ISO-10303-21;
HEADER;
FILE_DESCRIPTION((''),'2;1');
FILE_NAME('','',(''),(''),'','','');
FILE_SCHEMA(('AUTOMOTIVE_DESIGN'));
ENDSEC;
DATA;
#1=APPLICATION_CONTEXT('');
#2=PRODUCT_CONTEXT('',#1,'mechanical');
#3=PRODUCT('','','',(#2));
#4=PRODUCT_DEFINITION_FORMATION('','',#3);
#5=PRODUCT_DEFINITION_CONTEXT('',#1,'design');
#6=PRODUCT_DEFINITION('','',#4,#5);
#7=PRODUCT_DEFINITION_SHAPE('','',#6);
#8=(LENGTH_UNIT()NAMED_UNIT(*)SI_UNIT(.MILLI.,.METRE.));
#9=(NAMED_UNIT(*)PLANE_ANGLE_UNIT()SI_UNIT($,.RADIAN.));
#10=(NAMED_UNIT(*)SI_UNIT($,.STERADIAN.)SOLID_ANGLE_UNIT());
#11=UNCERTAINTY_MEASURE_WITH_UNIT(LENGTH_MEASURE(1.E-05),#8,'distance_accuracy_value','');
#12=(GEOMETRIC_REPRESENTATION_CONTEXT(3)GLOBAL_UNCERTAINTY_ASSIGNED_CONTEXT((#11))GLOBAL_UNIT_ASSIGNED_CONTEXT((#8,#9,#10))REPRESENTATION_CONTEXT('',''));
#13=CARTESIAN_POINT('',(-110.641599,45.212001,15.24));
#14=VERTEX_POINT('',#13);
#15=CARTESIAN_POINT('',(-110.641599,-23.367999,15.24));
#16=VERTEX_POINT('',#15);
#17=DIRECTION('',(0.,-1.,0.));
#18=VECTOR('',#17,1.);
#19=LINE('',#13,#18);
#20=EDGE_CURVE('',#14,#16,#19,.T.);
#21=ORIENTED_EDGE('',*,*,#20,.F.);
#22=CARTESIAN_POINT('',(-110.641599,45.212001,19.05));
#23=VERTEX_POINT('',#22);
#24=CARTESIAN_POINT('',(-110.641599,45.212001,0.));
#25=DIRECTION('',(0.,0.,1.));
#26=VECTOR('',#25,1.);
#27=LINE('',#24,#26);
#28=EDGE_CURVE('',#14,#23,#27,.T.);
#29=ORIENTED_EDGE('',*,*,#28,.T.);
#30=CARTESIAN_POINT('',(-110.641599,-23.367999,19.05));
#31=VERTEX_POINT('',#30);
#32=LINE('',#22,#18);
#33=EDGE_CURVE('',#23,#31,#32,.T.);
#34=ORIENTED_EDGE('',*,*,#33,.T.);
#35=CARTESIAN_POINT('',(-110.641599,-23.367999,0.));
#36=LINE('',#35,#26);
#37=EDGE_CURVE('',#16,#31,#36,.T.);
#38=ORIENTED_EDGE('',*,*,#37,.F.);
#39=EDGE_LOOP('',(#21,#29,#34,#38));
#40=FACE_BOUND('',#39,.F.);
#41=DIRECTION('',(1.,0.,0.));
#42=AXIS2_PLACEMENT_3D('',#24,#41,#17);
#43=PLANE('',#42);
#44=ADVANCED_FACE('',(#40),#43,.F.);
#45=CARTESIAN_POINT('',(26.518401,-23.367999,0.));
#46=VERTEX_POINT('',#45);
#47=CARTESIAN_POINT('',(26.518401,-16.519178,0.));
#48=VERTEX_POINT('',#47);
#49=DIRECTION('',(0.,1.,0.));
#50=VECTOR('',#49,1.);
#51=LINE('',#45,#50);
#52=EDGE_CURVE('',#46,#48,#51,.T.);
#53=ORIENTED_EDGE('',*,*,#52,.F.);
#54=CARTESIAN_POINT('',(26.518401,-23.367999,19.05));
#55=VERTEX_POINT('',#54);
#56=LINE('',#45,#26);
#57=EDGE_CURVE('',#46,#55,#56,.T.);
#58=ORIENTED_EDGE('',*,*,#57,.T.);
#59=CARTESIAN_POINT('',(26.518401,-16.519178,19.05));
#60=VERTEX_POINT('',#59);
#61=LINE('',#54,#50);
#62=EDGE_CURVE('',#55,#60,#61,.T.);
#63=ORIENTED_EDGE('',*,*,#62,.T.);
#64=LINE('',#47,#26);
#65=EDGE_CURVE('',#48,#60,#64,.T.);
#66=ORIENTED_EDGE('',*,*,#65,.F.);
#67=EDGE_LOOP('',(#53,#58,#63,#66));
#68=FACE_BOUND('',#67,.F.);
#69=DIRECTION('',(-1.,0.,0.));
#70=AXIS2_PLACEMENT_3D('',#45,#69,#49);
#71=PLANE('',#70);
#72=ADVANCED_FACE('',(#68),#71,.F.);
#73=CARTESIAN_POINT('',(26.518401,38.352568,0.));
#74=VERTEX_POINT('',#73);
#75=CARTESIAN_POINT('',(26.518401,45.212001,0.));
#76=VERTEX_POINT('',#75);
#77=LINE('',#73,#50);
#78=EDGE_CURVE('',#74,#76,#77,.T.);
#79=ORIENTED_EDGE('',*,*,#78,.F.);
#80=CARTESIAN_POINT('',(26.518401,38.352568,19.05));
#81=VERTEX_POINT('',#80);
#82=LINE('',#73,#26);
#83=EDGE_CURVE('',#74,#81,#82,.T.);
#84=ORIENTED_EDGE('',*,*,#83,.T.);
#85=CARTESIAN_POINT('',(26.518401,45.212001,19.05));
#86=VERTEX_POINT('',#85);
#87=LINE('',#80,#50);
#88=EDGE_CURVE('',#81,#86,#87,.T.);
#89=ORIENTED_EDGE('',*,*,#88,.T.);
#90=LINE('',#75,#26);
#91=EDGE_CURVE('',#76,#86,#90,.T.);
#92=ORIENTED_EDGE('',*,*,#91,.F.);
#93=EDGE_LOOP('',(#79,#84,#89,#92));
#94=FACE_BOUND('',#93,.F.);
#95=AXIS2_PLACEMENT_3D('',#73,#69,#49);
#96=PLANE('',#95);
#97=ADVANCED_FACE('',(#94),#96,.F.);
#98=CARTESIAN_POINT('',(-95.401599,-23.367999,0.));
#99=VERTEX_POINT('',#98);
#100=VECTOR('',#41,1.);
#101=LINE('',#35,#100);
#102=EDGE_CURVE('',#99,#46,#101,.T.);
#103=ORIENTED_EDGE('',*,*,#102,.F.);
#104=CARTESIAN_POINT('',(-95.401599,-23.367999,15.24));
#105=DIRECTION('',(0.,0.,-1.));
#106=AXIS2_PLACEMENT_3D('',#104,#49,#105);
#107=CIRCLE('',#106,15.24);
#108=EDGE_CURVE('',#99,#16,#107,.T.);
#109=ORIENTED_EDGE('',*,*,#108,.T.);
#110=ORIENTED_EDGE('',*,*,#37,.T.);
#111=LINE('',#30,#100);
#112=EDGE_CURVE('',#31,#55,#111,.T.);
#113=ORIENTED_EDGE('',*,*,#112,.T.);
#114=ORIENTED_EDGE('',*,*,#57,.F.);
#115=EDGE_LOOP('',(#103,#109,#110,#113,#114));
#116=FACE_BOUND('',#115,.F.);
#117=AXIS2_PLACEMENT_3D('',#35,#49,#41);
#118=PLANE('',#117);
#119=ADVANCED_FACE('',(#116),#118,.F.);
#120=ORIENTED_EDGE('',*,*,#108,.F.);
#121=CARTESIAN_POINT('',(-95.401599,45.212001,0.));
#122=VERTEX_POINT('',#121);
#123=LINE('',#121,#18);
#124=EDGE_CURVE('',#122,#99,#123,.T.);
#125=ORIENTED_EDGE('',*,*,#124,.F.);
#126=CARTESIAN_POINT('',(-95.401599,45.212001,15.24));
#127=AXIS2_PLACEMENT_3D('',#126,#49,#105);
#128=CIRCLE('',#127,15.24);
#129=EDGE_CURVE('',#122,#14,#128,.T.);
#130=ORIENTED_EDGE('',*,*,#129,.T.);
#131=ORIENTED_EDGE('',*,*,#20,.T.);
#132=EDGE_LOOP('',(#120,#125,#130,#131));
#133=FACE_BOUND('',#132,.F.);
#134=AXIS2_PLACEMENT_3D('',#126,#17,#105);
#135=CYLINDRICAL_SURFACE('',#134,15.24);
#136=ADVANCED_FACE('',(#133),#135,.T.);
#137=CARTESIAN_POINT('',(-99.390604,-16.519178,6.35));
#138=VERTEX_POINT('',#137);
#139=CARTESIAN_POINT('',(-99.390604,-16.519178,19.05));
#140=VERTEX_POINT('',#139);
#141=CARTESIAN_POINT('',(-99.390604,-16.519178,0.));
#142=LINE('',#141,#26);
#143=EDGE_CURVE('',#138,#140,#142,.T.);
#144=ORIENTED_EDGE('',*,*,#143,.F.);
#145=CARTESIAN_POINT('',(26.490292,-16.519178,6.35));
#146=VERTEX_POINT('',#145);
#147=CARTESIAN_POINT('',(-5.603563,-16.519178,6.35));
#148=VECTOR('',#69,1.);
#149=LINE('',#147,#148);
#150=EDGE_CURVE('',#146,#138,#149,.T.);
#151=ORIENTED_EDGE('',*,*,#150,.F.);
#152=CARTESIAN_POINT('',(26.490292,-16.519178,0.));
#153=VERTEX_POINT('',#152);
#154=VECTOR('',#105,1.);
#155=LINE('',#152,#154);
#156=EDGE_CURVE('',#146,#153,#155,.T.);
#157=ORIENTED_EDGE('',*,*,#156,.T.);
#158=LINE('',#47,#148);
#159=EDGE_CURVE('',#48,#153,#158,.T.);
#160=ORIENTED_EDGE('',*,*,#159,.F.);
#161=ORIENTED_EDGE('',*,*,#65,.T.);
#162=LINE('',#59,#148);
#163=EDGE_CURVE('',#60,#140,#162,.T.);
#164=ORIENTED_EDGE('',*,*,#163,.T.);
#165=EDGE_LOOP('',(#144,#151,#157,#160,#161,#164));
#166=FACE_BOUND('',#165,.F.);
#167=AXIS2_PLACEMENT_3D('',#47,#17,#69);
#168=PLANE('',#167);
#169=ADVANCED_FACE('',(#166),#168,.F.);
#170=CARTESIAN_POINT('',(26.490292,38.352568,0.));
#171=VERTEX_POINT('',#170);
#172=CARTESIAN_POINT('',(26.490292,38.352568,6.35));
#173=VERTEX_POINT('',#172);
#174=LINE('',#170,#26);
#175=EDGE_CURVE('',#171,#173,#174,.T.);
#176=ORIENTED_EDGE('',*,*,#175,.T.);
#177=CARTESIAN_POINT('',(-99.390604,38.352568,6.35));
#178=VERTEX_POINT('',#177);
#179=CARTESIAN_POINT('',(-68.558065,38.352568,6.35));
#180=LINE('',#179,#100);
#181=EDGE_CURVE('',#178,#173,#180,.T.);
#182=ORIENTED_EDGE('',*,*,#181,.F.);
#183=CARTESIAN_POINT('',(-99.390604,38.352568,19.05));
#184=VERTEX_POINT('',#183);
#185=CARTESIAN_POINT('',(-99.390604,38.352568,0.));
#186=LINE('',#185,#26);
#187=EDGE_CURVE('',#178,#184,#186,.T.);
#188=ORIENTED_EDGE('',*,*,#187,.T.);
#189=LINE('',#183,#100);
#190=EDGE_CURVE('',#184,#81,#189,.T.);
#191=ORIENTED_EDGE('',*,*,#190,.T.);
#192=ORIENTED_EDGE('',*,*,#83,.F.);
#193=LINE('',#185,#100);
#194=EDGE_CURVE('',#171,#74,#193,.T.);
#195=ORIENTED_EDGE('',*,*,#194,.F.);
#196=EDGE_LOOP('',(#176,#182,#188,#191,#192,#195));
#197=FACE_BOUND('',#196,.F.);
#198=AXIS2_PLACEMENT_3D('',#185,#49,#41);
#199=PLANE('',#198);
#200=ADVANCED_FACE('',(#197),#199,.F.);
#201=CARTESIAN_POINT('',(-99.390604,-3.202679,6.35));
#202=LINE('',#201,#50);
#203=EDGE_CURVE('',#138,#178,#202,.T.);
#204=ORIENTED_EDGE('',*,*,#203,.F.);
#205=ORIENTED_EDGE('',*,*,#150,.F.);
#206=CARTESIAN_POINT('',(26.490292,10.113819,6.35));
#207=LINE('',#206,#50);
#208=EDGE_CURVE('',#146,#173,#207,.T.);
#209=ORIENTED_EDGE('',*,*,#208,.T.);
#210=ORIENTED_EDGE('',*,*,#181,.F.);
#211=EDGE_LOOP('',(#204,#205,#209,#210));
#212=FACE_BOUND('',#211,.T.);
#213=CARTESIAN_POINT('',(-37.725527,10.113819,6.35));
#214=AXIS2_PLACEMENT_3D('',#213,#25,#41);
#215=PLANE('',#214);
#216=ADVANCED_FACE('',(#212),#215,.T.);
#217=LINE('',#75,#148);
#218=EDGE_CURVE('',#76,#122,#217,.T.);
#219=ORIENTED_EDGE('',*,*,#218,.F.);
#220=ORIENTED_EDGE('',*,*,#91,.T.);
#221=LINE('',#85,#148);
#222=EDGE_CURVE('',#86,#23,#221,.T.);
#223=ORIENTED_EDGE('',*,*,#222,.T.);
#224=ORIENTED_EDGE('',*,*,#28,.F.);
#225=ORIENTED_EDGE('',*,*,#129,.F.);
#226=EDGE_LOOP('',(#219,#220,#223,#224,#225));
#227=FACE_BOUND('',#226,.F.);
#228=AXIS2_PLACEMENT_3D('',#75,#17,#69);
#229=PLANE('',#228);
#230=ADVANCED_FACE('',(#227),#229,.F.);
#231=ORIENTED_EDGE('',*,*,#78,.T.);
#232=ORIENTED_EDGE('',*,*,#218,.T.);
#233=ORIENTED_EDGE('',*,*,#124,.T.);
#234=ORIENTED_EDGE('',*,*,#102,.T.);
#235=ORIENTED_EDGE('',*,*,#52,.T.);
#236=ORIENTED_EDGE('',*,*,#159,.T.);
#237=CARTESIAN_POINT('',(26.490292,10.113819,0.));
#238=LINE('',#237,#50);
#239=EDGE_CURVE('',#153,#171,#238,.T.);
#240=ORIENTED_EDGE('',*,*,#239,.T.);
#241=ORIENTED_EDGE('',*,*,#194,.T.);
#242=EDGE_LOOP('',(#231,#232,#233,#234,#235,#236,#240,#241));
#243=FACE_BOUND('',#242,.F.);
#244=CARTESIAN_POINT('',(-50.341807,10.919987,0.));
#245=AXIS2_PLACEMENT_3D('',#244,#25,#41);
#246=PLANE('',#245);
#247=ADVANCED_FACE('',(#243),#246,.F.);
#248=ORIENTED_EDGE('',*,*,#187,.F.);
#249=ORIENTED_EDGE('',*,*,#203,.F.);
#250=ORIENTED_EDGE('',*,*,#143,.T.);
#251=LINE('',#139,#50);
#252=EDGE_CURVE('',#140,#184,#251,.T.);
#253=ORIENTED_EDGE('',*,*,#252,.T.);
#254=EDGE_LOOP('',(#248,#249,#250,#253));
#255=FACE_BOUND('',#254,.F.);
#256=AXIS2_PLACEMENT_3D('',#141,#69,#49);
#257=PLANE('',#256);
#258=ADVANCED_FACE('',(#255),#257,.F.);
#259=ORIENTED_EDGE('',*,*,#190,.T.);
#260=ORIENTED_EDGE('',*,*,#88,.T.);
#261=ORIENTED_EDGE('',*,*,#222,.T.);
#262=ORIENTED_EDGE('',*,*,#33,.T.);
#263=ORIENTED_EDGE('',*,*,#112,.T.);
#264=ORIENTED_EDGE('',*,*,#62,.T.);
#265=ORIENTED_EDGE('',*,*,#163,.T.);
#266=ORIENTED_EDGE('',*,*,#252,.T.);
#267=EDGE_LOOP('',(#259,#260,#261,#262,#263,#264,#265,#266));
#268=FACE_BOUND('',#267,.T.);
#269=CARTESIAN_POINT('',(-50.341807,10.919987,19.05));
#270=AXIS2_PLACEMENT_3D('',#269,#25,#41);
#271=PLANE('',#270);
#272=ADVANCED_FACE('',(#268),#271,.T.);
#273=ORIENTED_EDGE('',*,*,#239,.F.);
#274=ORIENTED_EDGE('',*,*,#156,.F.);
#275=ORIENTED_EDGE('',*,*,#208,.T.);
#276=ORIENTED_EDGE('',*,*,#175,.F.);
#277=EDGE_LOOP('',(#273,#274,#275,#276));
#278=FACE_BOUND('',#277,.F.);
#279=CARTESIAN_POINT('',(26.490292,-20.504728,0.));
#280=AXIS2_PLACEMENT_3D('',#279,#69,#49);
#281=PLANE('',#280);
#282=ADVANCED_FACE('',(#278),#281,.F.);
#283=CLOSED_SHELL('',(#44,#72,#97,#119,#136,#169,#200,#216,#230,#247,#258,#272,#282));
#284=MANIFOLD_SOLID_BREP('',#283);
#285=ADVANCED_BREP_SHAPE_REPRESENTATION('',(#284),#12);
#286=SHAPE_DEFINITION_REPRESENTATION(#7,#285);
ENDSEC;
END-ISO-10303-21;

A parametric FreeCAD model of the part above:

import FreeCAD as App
import Part
import Sketcher

V = App.Vector
Q = App.Units.Quantity


def edges_at(feature, points):
    """Names of the edges that pass closest to the given points."""
    edges = feature.Shape.Edges
    near = lambda p: min(range(len(edges)), key=lambda i: edges[i].distToShape(Part.Vertex(*p))[0])
    return sorted({f"Edge{near(p) + 1}" for p in points})

doc = App.newDocument("Part")
body = doc.addObject("PartDesign::Body", "Body")

# Sketch on XY plane
sketch1 = doc.addObject("Sketcher::SketchObject", "Sketch")
body.addObject(sketch1)
sketch1.AttachmentSupport = (doc.XY_Plane, [""])
sketch1.MapMode = "FlatFace"
sketch1.addGeometry([
    Part.LineSegment(V(-110.641599, 45.212001, 0), V(-110.641599, -23.367999, 0)),  # 0
    Part.LineSegment(V(-110.641599, -23.367999, 0), V(26.518401, -23.367999, 0)),  # 1
    Part.LineSegment(V(26.518401, -23.367999, 0), V(26.518401, -16.519178, 0)),  # 2
    Part.LineSegment(V(26.518401, -16.519178, 0), V(-99.390604, -16.519178, 0)),  # 3
    Part.LineSegment(V(-99.390604, -16.519178, 0), V(-99.390604, 38.352568, 0)),  # 4
    Part.LineSegment(V(-99.390604, 38.352568, 0), V(26.518401, 38.352568, 0)),  # 5
    Part.LineSegment(V(26.518401, 38.352568, 0), V(26.518401, 45.212001, 0)),  # 6
    Part.LineSegment(V(26.518401, 45.212001, 0), V(-110.641599, 45.212001, 0)),  # 7
], False)
sketch1.addConstraint([
    Sketcher.Constraint("Coincident", 0, 2, 1, 1),
    Sketcher.Constraint("Coincident", 1, 2, 2, 1),
    Sketcher.Constraint("Coincident", 2, 2, 3, 1),
    Sketcher.Constraint("Coincident", 3, 2, 4, 1),
    Sketcher.Constraint("Coincident", 4, 2, 5, 1),
    Sketcher.Constraint("Coincident", 5, 2, 6, 1),
    Sketcher.Constraint("Coincident", 6, 2, 7, 1),
    Sketcher.Constraint("Coincident", 7, 2, 0, 1),
    Sketcher.Constraint("Vertical", 0),
    Sketcher.Constraint("Horizontal", 1),
    Sketcher.Constraint("Vertical", 2),
    Sketcher.Constraint("Horizontal", 3),
    Sketcher.Constraint("Vertical", 4),
    Sketcher.Constraint("Horizontal", 5),
    Sketcher.Constraint("Vertical", 6),
    Sketcher.Constraint("Horizontal", 7),
    Sketcher.Constraint("Vertical", 2, 2, 5, 2),
    Sketcher.Constraint("DistanceX", 1, 1, 1, 2, Q("5.4 in")),
    Sketcher.Constraint("DistanceY", 0, 2, 0, 1, Q("2.7 in")),
    Sketcher.Constraint("DistanceY", 0, 2, -1, 1, Q("0.92 in")),
    Sketcher.Constraint("DistanceY", 2, 1, 2, 2, 6.848821),
    Sketcher.Constraint("DistanceX", 0, 2, -1, 1, 110.641599),
    Sketcher.Constraint("DistanceX", 3, 2, 3, 1, 125.909005),
    Sketcher.Constraint("DistanceY", 4, 1, 4, 2, 54.871746),
])
pad1 = doc.addObject("PartDesign::Pad", "Pad")
body.addObject(pad1)
pad1.Profile = sketch1
pad1.Length = Q("0.75 in")

# Sketch on XY plane
sketch2 = doc.addObject("Sketcher::SketchObject", "Sketch001")
body.addObject(sketch2)
sketch2.AttachmentSupport = (doc.XY_Plane, [""])
sketch2.MapMode = "FlatFace"
sketch2.addGeometry([
    Part.LineSegment(V(-101.941346, 40.732366, 0), V(-101.941346, -20.504728, 0)),
    Part.LineSegment(V(-101.941346, -20.504728, 0), V(26.490292, -20.504728, 0)),
    Part.LineSegment(V(26.490292, -20.504728, 0), V(26.490292, 40.732366, 0)),
    Part.LineSegment(V(26.490292, 40.732366, 0), V(-101.941346, 40.732366, 0)),
], False)
sketch2.addConstraint([
    Sketcher.Constraint("Coincident", 0, 2, 1, 1),
    Sketcher.Constraint("Coincident", 1, 2, 2, 1),
    Sketcher.Constraint("Coincident", 2, 2, 3, 1),
    Sketcher.Constraint("Coincident", 3, 2, 0, 1),
    Sketcher.Constraint("Vertical", 0),
    Sketcher.Constraint("Horizontal", 1),
    Sketcher.Constraint("Vertical", 2),
    Sketcher.Constraint("Horizontal", 3),
    Sketcher.Constraint("DistanceX", 1, 1, 1, 2, 128.431639),
    Sketcher.Constraint("DistanceY", 0, 2, 0, 1, 61.237093),
    Sketcher.Constraint("DistanceX", 0, 2, -1, 1, 101.941346),
    Sketcher.Constraint("DistanceY", 0, 2, -1, 1, 20.504728),
])
pad2 = doc.addObject("PartDesign::Pad", "Pad001")
body.addObject(pad2)
pad2.Profile = sketch2
pad2.Length = Q("0.25 in")
doc.recompute()

fillet = doc.addObject("PartDesign::Fillet", "Fillet")
body.addObject(fillet)
fillet.Base = (pad2, edges_at(pad2, [(-110.642, 10.922, 0)]))
fillet.Radius = Q("0.6 in")

doc.recompute()
